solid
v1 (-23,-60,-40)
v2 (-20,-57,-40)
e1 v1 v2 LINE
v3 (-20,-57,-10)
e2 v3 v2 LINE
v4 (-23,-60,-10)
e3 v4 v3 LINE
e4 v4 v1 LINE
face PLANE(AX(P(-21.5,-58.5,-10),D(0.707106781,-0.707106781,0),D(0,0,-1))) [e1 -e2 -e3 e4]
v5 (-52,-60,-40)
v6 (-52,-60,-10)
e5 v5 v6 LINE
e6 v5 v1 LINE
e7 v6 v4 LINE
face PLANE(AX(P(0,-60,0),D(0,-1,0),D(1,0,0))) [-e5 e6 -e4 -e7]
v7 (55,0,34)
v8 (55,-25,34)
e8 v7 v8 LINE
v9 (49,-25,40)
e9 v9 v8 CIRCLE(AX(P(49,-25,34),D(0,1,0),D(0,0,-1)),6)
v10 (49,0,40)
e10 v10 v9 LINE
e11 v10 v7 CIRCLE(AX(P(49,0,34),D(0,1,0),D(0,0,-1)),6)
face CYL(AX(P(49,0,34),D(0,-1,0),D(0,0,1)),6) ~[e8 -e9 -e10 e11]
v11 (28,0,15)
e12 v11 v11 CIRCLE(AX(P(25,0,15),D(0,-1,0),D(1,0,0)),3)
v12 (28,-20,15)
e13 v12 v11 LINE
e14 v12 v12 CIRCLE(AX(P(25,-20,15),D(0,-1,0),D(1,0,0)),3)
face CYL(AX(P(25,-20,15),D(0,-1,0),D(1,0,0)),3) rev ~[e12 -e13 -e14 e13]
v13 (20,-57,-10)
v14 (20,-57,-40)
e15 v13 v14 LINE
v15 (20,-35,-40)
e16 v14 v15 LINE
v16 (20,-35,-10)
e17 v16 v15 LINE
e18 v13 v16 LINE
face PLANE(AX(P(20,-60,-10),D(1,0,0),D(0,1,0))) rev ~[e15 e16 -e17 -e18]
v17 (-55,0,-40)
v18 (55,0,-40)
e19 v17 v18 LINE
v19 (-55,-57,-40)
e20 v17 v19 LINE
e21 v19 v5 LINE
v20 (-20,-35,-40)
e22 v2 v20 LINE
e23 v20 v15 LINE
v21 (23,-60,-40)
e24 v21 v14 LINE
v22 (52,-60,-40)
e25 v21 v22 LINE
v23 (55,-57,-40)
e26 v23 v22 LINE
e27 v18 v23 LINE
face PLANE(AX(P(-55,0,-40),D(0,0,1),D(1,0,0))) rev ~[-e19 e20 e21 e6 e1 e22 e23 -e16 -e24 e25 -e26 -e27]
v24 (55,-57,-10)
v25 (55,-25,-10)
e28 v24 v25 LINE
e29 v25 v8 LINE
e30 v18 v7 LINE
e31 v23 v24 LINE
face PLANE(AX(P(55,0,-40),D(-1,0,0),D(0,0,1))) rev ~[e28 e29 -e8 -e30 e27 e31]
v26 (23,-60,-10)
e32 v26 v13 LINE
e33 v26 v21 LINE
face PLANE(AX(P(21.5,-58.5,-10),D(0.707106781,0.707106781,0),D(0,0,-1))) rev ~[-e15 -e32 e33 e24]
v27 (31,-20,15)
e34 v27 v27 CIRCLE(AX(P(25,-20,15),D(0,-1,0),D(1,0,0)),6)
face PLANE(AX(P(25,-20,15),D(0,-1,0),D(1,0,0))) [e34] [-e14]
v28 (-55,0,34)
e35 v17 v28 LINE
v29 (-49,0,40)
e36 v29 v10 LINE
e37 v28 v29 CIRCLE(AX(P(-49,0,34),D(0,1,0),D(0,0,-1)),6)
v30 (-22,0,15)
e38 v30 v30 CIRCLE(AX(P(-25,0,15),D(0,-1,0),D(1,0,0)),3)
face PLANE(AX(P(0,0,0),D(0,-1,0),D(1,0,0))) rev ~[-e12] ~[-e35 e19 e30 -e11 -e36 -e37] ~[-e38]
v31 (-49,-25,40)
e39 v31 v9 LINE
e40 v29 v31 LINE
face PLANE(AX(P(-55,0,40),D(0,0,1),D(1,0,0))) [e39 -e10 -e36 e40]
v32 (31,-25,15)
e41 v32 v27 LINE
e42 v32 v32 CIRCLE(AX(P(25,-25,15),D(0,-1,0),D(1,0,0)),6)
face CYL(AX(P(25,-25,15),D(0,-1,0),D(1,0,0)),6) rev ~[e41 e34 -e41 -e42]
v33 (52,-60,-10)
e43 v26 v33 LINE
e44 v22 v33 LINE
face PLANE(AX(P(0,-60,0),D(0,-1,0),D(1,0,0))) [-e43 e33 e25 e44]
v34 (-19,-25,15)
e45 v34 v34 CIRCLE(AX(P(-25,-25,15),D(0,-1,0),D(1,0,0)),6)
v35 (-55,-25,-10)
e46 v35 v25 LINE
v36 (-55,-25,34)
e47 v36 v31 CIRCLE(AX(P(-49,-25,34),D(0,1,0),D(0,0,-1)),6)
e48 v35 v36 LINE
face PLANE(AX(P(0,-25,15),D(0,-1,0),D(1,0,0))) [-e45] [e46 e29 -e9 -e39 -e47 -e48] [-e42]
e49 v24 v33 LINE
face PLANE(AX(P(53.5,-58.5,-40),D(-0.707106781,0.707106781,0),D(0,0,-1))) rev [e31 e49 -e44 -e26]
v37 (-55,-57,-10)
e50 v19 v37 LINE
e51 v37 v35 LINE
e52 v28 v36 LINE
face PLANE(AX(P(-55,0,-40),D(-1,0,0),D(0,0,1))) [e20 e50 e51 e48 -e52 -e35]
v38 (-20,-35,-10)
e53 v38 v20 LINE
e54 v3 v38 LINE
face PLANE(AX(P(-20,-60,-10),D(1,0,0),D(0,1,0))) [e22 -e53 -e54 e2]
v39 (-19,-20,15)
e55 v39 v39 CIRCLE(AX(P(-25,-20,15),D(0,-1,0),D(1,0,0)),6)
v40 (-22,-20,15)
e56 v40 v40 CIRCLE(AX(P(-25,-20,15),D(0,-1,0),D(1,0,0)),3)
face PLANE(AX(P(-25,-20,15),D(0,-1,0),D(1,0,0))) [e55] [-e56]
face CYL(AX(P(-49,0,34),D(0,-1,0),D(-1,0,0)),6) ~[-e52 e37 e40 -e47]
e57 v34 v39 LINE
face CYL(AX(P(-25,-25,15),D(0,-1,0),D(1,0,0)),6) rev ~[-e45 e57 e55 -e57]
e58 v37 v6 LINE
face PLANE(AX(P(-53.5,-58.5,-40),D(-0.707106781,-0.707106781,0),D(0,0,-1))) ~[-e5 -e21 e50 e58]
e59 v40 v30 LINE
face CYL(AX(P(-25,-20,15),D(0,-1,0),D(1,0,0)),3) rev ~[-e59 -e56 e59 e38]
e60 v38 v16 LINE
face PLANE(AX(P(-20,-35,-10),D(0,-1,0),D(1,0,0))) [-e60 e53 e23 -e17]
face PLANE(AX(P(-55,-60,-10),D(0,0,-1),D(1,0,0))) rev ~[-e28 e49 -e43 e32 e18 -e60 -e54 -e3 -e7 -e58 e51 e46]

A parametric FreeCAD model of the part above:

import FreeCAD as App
import Part
import Sketcher

V = App.Vector


def edges_at(feature, points):
    """Names of the edges that pass closest to the given points."""
    edges = feature.Shape.Edges
    near = lambda p: min(range(len(edges)), key=lambda i: edges[i].distToShape(Part.Vertex(*p))[0])
    return sorted({f"Edge{near(p) + 1}" for p in points})

doc = App.newDocument("Part")
params = doc.addObject("Spreadsheet::Sheet", "Params")
for row, (alias, value) in enumerate([
    ("sketch1_width", "110 mm"),
    ("sketch1_height", "80 mm"),
    ("pad1_length", "60 mm"),
    ("sketch2_width", "110 mm"),
    ("sketch2_height", "50 mm"),
    ("pocket1_length", "35 mm"),
    ("fillet_radius", "6 mm"),
    ("sketch3_diameter", "12 mm"),
    ("pocket2_length", "5 mm"),
    ("sketch4_diameter", "6 mm"),
    ("sketch5_width", "40 mm"),
    ("sketch5_height", "25 mm"),
    ("chamfer_size", "3 mm"),
    ("chamfer_size2", "3 mm"),
], start=1):
    params.set(f"A{row}", alias)
    params.set(f"B{row}", "=" + value)
    params.setAlias(f"B{row}", alias)

body = doc.addObject("PartDesign::Body", "Body")

sketch1 = body.newObject("Sketcher::SketchObject", "Sketch")
sketch1.AttachmentSupport = (doc.getObject("XZ_Plane"), [""])
sketch1.MapMode = "FlatFace"
sketch1.addGeometry([
    Part.LineSegment(V(-55, 40, 0), V(-55, -40, 0)),
    Part.LineSegment(V(-55, -40, 0), V(55, -40, 0)),
    Part.LineSegment(V(55, -40, 0), V(55, 40, 0)),
    Part.LineSegment(V(55, 40, 0), V(-55, 40, 0)),
], False)
sketch1.addConstraint([
    Sketcher.Constraint("Coincident", 0, 2, 1, 1),
    Sketcher.Constraint("Coincident", 1, 2, 2, 1),
    Sketcher.Constraint("Coincident", 2, 2, 3, 1),
    Sketcher.Constraint("Coincident", 3, 2, 0, 1),
    Sketcher.Constraint("Vertical", 0),
    Sketcher.Constraint("Horizontal", 1),
    Sketcher.Constraint("Vertical", 2),
    Sketcher.Constraint("Horizontal", 3),
    Sketcher.Constraint("Symmetric", 0, 2, 2, 2, -1, 1),
    Sketcher.Constraint("DistanceX", 1, 1, 1, 2, 110.0),
    Sketcher.Constraint("DistanceY", 0, 2, 0, 1, 80.0),
])
sketch1.setExpression("Constraints[9]", "Params.sketch1_width")
sketch1.setExpression("Constraints[10]", "Params.sketch1_height")
pad1 = body.newObject("PartDesign::Pad", "Pad")
pad1.Profile = sketch1
pad1.setExpression("Length", "Params.pad1_length")

sketch2 = body.newObject("Sketcher::SketchObject", "Sketch001")
sketch2.AttachmentSupport = (doc.getObject("XZ_Plane"), [""])
sketch2.MapMode = "FlatFace"
sketch2.AttachmentOffset = App.Placement(V(0, 0, 60), App.Rotation())
sketch2.addGeometry([
    Part.LineSegment(V(-55, 40, 0), V(-55, -10, 0)),
    Part.LineSegment(V(-55, -10, 0), V(55, -10, 0)),
    Part.LineSegment(V(55, -10, 0), V(55, 40, 0)),
    Part.LineSegment(V(55, 40, 0), V(-55, 40, 0)),
], False)
sketch2.addConstraint([
    Sketcher.Constraint("Coincident", 0, 2, 1, 1),
    Sketcher.Constraint("Coincident", 1, 2, 2, 1),
    Sketcher.Constraint("Coincident", 2, 2, 3, 1),
    Sketcher.Constraint("Coincident", 3, 2, 0, 1),
    Sketcher.Constraint("Vertical", 0),
    Sketcher.Constraint("Horizontal", 1),
    Sketcher.Constraint("Vertical", 2),
    Sketcher.Constraint("Horizontal", 3),
    Sketcher.Constraint("DistanceX", 1, 1, 1, 2, 110.0),
    Sketcher.Constraint("DistanceY", 0, 2, 0, 1, 50.0),
    Sketcher.Constraint("DistanceX", 0, 2, -1, 1, 55.0),
    Sketcher.Constraint("DistanceY", 0, 2, -1, 1, 10.0),
])
sketch2.setExpression("Constraints[8]", "Params.sketch2_width")
sketch2.setExpression("Constraints[9]", "Params.sketch2_height")
pocket1 = body.newObject("PartDesign::Pocket", "Pocket")
pocket1.Profile = sketch2
pocket1.setExpression("Length", "Params.pocket1_length")
doc.recompute()

fillet = body.newObject("PartDesign::Fillet", "Fillet")
fillet.Base = (pocket1, edges_at(pocket1, [(55, -12.5, 40), (-55, -12.5, 40)]))
fillet.setExpression("Radius", "Params.fillet_radius")

sketch3 = body.newObject("Sketcher::SketchObject", "Sketch002")
sketch3.AttachmentSupport = (doc.getObject("XZ_Plane"), [""])
sketch3.MapMode = "FlatFace"
sketch3.AttachmentOffset = App.Placement(V(0, 0, 25), App.Rotation())
sketch3.addGeometry([
    Part.Circle(V(-25, 15, 0), V(0, 0, 1), 6),
    Part.Circle(V(25, 15, 0), V(0, 0, 1), 6),
], False)
sketch3.addConstraint([
    Sketcher.Constraint("Equal", 0, 1),
    Sketcher.Constraint("Symmetric", 0, 3, 1, 3, -2),
    Sketcher.Constraint("Diameter", 0, 12.0),
    Sketcher.Constraint("DistanceX", 0, 3, -1, 1, 25.0),
    Sketcher.Constraint("DistanceY", -1, 1, 0, 3, 15.0),
])
sketch3.setExpression("Constraints[2]", "Params.sketch3_diameter")
pocket2 = body.newObject("PartDesign::Pocket", "Pocket001")
pocket2.Profile = sketch3
pocket2.setExpression("Length", "Params.pocket2_length")

sketch4 = body.newObject("Sketcher::SketchObject", "Sketch003")
sketch4.AttachmentSupport = (doc.getObject("XZ_Plane"), [""])
sketch4.MapMode = "FlatFace"
sketch4.AttachmentOffset = App.Placement(V(0, 0, 20), App.Rotation())
sketch4.addGeometry([
    Part.Circle(V(-25, 15, 0), V(0, 0, 1), 3),
    Part.Circle(V(25, 15, 0), V(0, 0, 1), 3),
], False)
sketch4.addConstraint([
    Sketcher.Constraint("Equal", 0, 1),
    Sketcher.Constraint("Symmetric", 0, 3, 1, 3, -2),
    Sketcher.Constraint("Diameter", 0, 6.0),
    Sketcher.Constraint("DistanceX", 0, 3, -1, 1, 25.0),
    Sketcher.Constraint("DistanceY", -1, 1, 0, 3, 15.0),
])
sketch4.setExpression("Constraints[2]", "Params.sketch4_diameter")
pocket3 = body.newObject("PartDesign::Pocket", "Pocket002")
pocket3.Profile = sketch4
pocket3.Type = "ThroughAll"

sketch5 = body.newObject("Sketcher::SketchObject", "Sketch004")
sketch5.AttachmentSupport = (doc.getObject("XY_Plane"), [""])
sketch5.MapMode = "FlatFace"
sketch5.AttachmentOffset = App.Placement(V(0, 0, -10), App.Rotation())
sketch5.addGeometry([
    Part.LineSegment(V(-20, -35, 0), V(-20, -60, 0)),
    Part.LineSegment(V(-20, -60, 0), V(20, -60, 0)),
    Part.LineSegment(V(20, -60, 0), V(20, -35, 0)),
    Part.LineSegment(V(20, -35, 0), V(-20, -35, 0)),
], False)
sketch5.addConstraint([
    Sketcher.Constraint("Coincident", 0, 2, 1, 1),
    Sketcher.Constraint("Coincident", 1, 2, 2, 1),
    Sketcher.Constraint("Coincident", 2, 2, 3, 1),
    Sketcher.Constraint("Coincident", 3, 2, 0, 1),
    Sketcher.Constraint("Vertical", 0),
    Sketcher.Constraint("Horizontal", 1),
    Sketcher.Constraint("Vertical", 2),
    Sketcher.Constraint("Horizontal", 3),
    Sketcher.Constraint("DistanceX", 1, 1, 1, 2, 40.0),
    Sketcher.Constraint("DistanceY", 0, 2, 0, 1, 25.0),
    Sketcher.Constraint("DistanceX", 0, 2, -1, 1, 20.0),
    Sketcher.Constraint("DistanceY", 0, 2, -1, 1, 60.0),
])
sketch5.setExpression("Constraints[8]", "Params.sketch5_width")
sketch5.setExpression("Constraints[9]", "Params.sketch5_height")
pocket4 = body.newObject("PartDesign::Pocket", "Pocket003")
pocket4.Profile = sketch5
pocket4.Type = "ThroughAll"
doc.recompute()

chamfer = body.newObject("PartDesign::Chamfer", "Chamfer")
chamfer.Base = (pocket4, edges_at(pocket4, [
    (-55, -60, -25),
    (55, -60, -25),
    (-20, -60, -25),
    (20, -60, -25),
]))
chamfer.ChamferType = "Two distances"
chamfer.setExpression("Size", "Params.chamfer_size")
chamfer.setExpression("Size2", "Params.chamfer_size2")

doc.recompute()
